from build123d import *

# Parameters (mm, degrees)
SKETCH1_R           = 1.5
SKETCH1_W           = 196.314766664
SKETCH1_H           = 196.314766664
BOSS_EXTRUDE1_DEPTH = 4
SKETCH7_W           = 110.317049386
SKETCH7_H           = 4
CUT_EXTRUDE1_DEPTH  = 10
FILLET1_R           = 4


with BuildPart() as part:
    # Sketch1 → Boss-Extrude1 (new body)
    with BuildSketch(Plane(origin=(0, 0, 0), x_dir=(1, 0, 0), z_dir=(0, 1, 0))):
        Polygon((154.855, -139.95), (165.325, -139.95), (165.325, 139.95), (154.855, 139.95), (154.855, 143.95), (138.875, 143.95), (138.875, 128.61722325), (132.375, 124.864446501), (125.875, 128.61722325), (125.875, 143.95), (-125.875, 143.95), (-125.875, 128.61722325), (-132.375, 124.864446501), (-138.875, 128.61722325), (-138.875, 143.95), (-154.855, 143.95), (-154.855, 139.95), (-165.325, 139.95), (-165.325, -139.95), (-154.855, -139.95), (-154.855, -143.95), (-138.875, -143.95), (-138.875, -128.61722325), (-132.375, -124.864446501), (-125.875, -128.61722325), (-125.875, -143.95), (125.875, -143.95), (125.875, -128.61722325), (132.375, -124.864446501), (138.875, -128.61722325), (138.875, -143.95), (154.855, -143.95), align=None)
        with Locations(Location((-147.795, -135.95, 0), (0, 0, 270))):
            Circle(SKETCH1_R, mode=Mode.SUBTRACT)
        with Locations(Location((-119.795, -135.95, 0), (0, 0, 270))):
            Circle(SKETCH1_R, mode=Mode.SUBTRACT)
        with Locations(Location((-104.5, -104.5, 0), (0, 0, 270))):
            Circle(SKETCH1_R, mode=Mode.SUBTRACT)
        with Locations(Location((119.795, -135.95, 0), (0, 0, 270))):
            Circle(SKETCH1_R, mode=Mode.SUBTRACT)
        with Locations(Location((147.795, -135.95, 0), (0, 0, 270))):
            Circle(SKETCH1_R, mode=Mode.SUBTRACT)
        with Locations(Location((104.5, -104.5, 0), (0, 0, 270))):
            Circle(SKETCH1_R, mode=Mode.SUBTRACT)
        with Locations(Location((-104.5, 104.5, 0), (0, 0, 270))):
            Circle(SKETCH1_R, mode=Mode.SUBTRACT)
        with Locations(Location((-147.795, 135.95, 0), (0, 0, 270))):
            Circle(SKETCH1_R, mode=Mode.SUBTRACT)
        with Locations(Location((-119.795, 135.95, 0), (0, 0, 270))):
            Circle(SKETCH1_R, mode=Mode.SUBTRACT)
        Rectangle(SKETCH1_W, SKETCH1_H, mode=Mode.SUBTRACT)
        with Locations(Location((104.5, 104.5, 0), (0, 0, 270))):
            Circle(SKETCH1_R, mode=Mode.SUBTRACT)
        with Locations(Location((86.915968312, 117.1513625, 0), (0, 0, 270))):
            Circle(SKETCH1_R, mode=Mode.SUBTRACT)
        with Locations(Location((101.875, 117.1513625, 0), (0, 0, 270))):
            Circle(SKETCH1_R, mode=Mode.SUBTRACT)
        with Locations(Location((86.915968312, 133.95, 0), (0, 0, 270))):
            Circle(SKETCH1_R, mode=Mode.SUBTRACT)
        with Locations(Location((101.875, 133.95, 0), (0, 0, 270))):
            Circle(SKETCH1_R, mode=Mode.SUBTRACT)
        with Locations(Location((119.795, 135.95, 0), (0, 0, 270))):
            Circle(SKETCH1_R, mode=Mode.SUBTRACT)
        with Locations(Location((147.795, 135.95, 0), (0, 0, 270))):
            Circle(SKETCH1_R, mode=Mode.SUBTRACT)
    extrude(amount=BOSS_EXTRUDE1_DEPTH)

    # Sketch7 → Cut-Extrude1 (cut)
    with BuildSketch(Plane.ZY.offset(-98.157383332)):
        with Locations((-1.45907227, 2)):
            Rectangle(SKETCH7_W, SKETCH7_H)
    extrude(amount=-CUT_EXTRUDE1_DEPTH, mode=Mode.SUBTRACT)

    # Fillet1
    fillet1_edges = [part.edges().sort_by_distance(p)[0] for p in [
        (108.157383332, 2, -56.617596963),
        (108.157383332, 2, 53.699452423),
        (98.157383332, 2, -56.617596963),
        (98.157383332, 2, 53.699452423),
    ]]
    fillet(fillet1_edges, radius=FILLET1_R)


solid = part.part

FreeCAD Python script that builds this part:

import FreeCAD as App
import Part
import Sketcher

V = App.Vector
Q = App.Units.Quantity


def edges_at(feature, points):
    """Names of the edges that pass closest to the given points."""
    edges = feature.Shape.Edges
    near = lambda p: min(range(len(edges)), key=lambda i: edges[i].distToShape(Part.Vertex(*p))[0])
    return sorted({f"Edge{near(p) + 1}" for p in points})


def add_polygon(sketch, points):
    """Adds a closed chain of lines whose ends are joined by coincident constraints."""
    first, n = sketch.GeometryCount, len(points)
    for a, b in zip(points, points[1:] + points[:1]):
        sketch.addGeometry(Part.LineSegment(App.Vector(*a, 0), App.Vector(*b, 0)), False)
    for i in range(n):
        sketch.addConstraint(Sketcher.Constraint("Coincident", first + i, 2, first + (i + 1) % n, 1))

doc = App.newDocument("Part")
body = doc.addObject("PartDesign::Body", "Body")

# Sketch on XZ plane
sketch1 = body.newObject("Sketcher::SketchObject", "Sketch")
sketch1.AttachmentSupport = (doc.getObject("XZ_Plane"), [""])
sketch1.MapMode = "FlatFace"
add_polygon(sketch1, [(154.855, 139.95), (165.325, 139.95), (165.325, -139.95), (154.855, -139.95), (154.855, -143.95), (138.875, -143.95), (138.875, -128.617223), (132.375, -124.864447), (125.875, -128.617223), (125.875, -143.95), (-125.875, -143.95), (-125.875, -128.617223), (-132.375, -124.864447), (-138.875, -128.617223), (-138.875, -143.95), (-154.855, -143.95), (-154.855, -139.95), (-165.325, -139.95), (-165.325, 139.95), (-154.855, 139.95), (-154.855, 143.95), (-138.875, 143.95), (-138.875, 128.617223), (-132.375, 124.864447), (-125.875, 128.617223), (-125.875, 143.95), (125.875, 143.95), (125.875, 128.617223), (132.375, 124.864447), (138.875, 128.617223), (138.875, 143.95), (154.855, 143.95)])  # lines 0-31
sketch1.addGeometry(Part.Circle(V(-147.795, 135.95, 0), V(0, 0, 1), 1.5), False)  # 32
sketch1.addGeometry(Part.Circle(V(-119.795, 135.95, 0), V(0, 0, 1), 1.5), False)  # 33
sketch1.addGeometry(Part.Circle(V(-104.5, 104.5, 0), V(0, 0, 1), 1.5), False)  # 34
sketch1.addGeometry(Part.Circle(V(104.5, 104.5, 0), V(0, 0, 1), 1.5), False)  # 35
sketch1.addGeometry(Part.Circle(V(119.795, 135.95, 0), V(0, 0, 1), 1.5), False)  # 36
sketch1.addGeometry(Part.Circle(V(147.795, 135.95, 0), V(0, 0, 1), 1.5), False)  # 37
sketch1.addGeometry(Part.Circle(V(-147.795, -135.95, 0), V(0, 0, 1), 1.5), False)  # 38
sketch1.addGeometry(Part.Circle(V(-119.795, -135.95, 0), V(0, 0, 1), 1.5), False)  # 39
sketch1.addGeometry(Part.Circle(V(-104.5, -104.5, 0), V(0, 0, 1), 1.5), False)  # 40
add_polygon(sketch1, [(98.157383, 98.157383), (-98.157383, 98.157383), (-98.157383, -98.157383), (98.157383, -98.157383)])  # lines 41-44
sketch1.addGeometry(Part.Circle(V(86.915968, -117.151363, 0), V(0, 0, 1), 1.5), False)  # 45
sketch1.addGeometry(Part.Circle(V(104.5, -104.5, 0), V(0, 0, 1), 1.5), False)  # 46
sketch1.addGeometry(Part.Circle(V(101.875, -117.151363, 0), V(0, 0, 1), 1.5), False)  # 47
sketch1.addGeometry(Part.Circle(V(86.915968, -133.95, 0), V(0, 0, 1), 1.5), False)  # 48
sketch1.addGeometry(Part.Circle(V(101.875, -133.95, 0), V(0, 0, 1), 1.5), False)  # 49
sketch1.addGeometry(Part.Circle(V(119.795, -135.95, 0), V(0, 0, 1), 1.5), False)  # 50
sketch1.addGeometry(Part.Circle(V(147.795, -135.95, 0), V(0, 0, 1), 1.5), False)  # 51
sketch1.addConstraint(Sketcher.Constraint("Horizontal", 0))
sketch1.addConstraint(Sketcher.Constraint("Vertical", 1))
sketch1.addConstraint(Sketcher.Constraint("Horizontal", 2))
sketch1.addConstraint(Sketcher.Constraint("Vertical", 3))
sketch1.addConstraint(Sketcher.Constraint("Horizontal", 4))
sketch1.addConstraint(Sketcher.Constraint("Vertical", 5))
sketch1.addConstraint(Sketcher.Constraint("Vertical", 8))
sketch1.addConstraint(Sketcher.Constraint("Horizontal", 9))
sketch1.addConstraint(Sketcher.Constraint("Vertical", 10))
sketch1.addConstraint(Sketcher.Constraint("Vertical", 13))
sketch1.addConstraint(Sketcher.Constraint("Horizontal", 14))
sketch1.addConstraint(Sketcher.Constraint("Vertical", 15))
sketch1.addConstraint(Sketcher.Constraint("Horizontal", 16))
sketch1.addConstraint(Sketcher.Constraint("Vertical", 17))
sketch1.addConstraint(Sketcher.Constraint("Horizontal", 18))
sketch1.addConstraint(Sketcher.Constraint("Vertical", 19))
sketch1.addConstraint(Sketcher.Constraint("Horizontal", 20))
sketch1.addConstraint(Sketcher.Constraint("Vertical", 21))
sketch1.addConstraint(Sketcher.Constraint("Vertical", 24))
sketch1.addConstraint(Sketcher.Constraint("Horizontal", 25))
sketch1.addConstraint(Sketcher.Constraint("Vertical", 26))
sketch1.addConstraint(Sketcher.Constraint("Vertical", 29))
sketch1.addConstraint(Sketcher.Constraint("Horizontal", 30))
sketch1.addConstraint(Sketcher.Constraint("Vertical", 31))
sketch1.addConstraint(Sketcher.Constraint("Horizontal", 41))
sketch1.addConstraint(Sketcher.Constraint("Vertical", 42))
sketch1.addConstraint(Sketcher.Constraint("Horizontal", 43))
sketch1.addConstraint(Sketcher.Constraint("Vertical", 44))
sketch1.addConstraint(Sketcher.Constraint("Equal", 32, 33))
sketch1.addConstraint(Sketcher.Constraint("Equal", 33, 34))
sketch1.addConstraint(Sketcher.Constraint("Equal", 34, 35))
sketch1.addConstraint(Sketcher.Constraint("Equal", 35, 36))
sketch1.addConstraint(Sketcher.Constraint("Equal", 36, 37))
sketch1.addConstraint(Sketcher.Constraint("Equal", 37, 38))
sketch1.addConstraint(Sketcher.Constraint("Equal", 38, 39))
sketch1.addConstraint(Sketcher.Constraint("Equal", 39, 40))
sketch1.addConstraint(Sketcher.Constraint("Equal", 40, 45))
sketch1.addConstraint(Sketcher.Constraint("Equal", 45, 46))
sketch1.addConstraint(Sketcher.Constraint("Equal", 46, 47))
sketch1.addConstraint(Sketcher.Constraint("Equal", 47, 48))
sketch1.addConstraint(Sketcher.Constraint("Equal", 48, 49))
sketch1.addConstraint(Sketcher.Constraint("Equal", 49, 50))
sketch1.addConstraint(Sketcher.Constraint("Equal", 50, 51))
sketch1.addConstraint(Sketcher.Constraint("Symmetric", 37, 3, 38, 3, -1, 1))
sketch1.addConstraint(Sketcher.Constraint("Symmetric", 36, 3, 39, 3, -1, 1))
sketch1.addConstraint(Sketcher.Constraint("Symmetric", 35, 3, 40, 3, -1, 1))
sketch1.addConstraint(Sketcher.Constraint("Symmetric", 34, 3, 46, 3, -1, 1))
sketch1.addConstraint(Sketcher.Constraint("Symmetric", 33, 3, 50, 3, -1, 1))
sketch1.addConstraint(Sketcher.Constraint("Symmetric", 32, 3, 51, 3, -1, 1))
sketch1.addConstraint(Sketcher.Constraint("Symmetric", 0, 2, 16, 2, -1, 1))
sketch1.addConstraint(Sketcher.Constraint("Symmetric", 2, 2, 18, 2, -1, 1))
sketch1.addConstraint(Sketcher.Constraint("Symmetric", 4, 2, 20, 2, -1, 1))
sketch1.addConstraint(Sketcher.Constraint("Symmetric", 6, 2, 22, 2, -1, 1))
sketch1.addConstraint(Sketcher.Constraint("Symmetric", 7, 2, 23, 2, -1, 1))
sketch1.addConstraint(Sketcher.Constraint("Symmetric", 9, 2, 25, 2, -1, 1))
sketch1.addConstraint(Sketcher.Constraint("Symmetric", 11, 2, 27, 2, -1, 1))
sketch1.addConstraint(Sketcher.Constraint("Symmetric", 12, 2, 28, 2, -1, 1))
sketch1.addConstraint(Sketcher.Constraint("Symmetric", 14, 2, 30, 2, -1, 1))
sketch1.addConstraint(Sketcher.Constraint("Symmetric", 41, 2, 43, 2, -1, 1))
sketch1.addConstraint(Sketcher.Constraint("Symmetric", 34, 3, 35, 3, -2))
sketch1.addConstraint(Sketcher.Constraint("Symmetric", 33, 3, 36, 3, -2))
sketch1.addConstraint(Sketcher.Constraint("Symmetric", 32, 3, 37, 3, -2))
sketch1.addConstraint(Sketcher.Constraint("Symmetric", 7, 2, 10, 2, -2))
sketch1.addConstraint(Sketcher.Constraint("Symmetric", 6, 2, 11, 2, -2))
sketch1.addConstraint(Sketcher.Constraint("Symmetric", 5, 2, 12, 2, -2))
sketch1.addConstraint(Sketcher.Constraint("Symmetric", 3, 2, 14, 2, -2))
sketch1.addConstraint(Sketcher.Constraint("Parallel", 6, 11))
sketch1.addConstraint(Sketcher.Constraint("Parallel", 11, 22))
sketch1.addConstraint(Sketcher.Constraint("Parallel", 22, 27))
sketch1.addConstraint(Sketcher.Constraint("Horizontal", 32, 3, 33, 3))
sketch1.addConstraint(Sketcher.Constraint("Horizontal", 45, 3, 47, 3))
sketch1.addConstraint(Sketcher.Constraint("Horizontal", 48, 3, 49, 3))
sketch1.addConstraint(Sketcher.Constraint("Horizontal", 5, 2, 7, 2))
sketch1.addConstraint(Sketcher.Constraint("Horizontal", 4, 2, 8, 2))
sketch1.addConstraint(Sketcher.Constraint("Horizontal", 2, 2, 15, 2))
sketch1.addConstraint(Sketcher.Constraint("Vertical", 45, 3, 48, 3))
sketch1.addConstraint(Sketcher.Constraint("Vertical", 47, 3, 49, 3))
sketch1.addConstraint(Sketcher.Constraint("Equal", 43, 42))
sketch1.addConstraint(Sketcher.Constraint("Diameter", 32, Q("3 mm")))
sketch1.addConstraint(Sketcher.Constraint("DistanceY", 3, 2, 3, 1, Q("4 mm")))
sketch1.addConstraint(Sketcher.Constraint("Angle", 6, Q("150 deg")))
sketch1.addConstraint(Sketcher.Constraint("DistanceY", 1, 2, 1, 1, Q("279.9 mm")))
sketch1.addConstraint(Sketcher.Constraint("DistanceX", 32, 3, 33, 3, Q("28 mm")))
sketch1.addConstraint(Sketcher.Constraint("DistanceX", 34, 3, 35, 3, Q("209 mm")))
sketch1.addConstraint(Sketcher.Constraint("DistanceY", 40, 3, 34, 3, Q("209 mm")))
sketch1.addConstraint(Sketcher.Constraint("DistanceY", 39, 3, 48, 3, Q("2 mm")))
sketch1.addConstraint(Sketcher.Constraint("DistanceY", 37, 3, 0, 2, Q("4 mm")))
sketch1.addConstraint(Sketcher.Constraint("DistanceX", 7, 2, 5, 2, Q("13 mm")))
sketch1.addConstraint(Sketcher.Constraint("DistanceX", 0, 1, 0, 2, Q("10.47 mm")))
sketch1.addConstraint(Sketcher.Constraint("DistanceX", 4, 2, 4, 1, Q("15.98 mm")))
sketch1.addConstraint(Sketcher.Constraint("DistanceX", 9, 2, 9, 1, Q("251.75 mm")))
sketch1.addConstraint(Sketcher.Constraint("DistanceX", 33, 3, 36, 3, Q("239.59 mm")))
sketch1.addConstraint(Sketcher.Constraint("DistanceX", 39, 3, 47, 3, Q("221.67 mm")))
sketch1.addConstraint(Sketcher.Constraint("DistanceX", 41, 2, 41, 1, Q("196.314767 mm")))
sketch1.addConstraint(Sketcher.Constraint("DistanceY", 5, 1, 5, 2, Q("15.332777 mm")))
sketch1.addConstraint(Sketcher.Constraint("DistanceX", -1, 1, 45, 3, Q("86.915968 mm")))
sketch1.addConstraint(Sketcher.Constraint("DistanceY", 47, 3, 43, 2, Q("18.993979 mm")))
pad1 = body.newObject("PartDesign::Pad", "Pad")
pad1.Profile = sketch1
pad1.Length = 4
pad1.Reversed = True

# Sketch on YZ plane
sketch2 = body.newObject("Sketcher::SketchObject", "Sketch001")
sketch2.AttachmentSupport = (doc.getObject("YZ_Plane"), [""])
sketch2.MapMode = "FlatFace"
sketch2.AttachmentOffset = App.Placement(V(0, 0, 98.157383), App.Rotation())
add_polygon(sketch2, [(4, -56.617597), (0, -56.617597), (0, 53.699452), (4, 53.699452)])  # lines 0-3
sketch2.addConstraint(Sketcher.Constraint("Horizontal", 0))
sketch2.addConstraint(Sketcher.Constraint("Vertical", 1))
sketch2.addConstraint(Sketcher.Constraint("Horizontal", 2))
sketch2.addConstraint(Sketcher.Constraint("Vertical", 3))
sketch2.addConstraint(Sketcher.Constraint("PointOnObject", 0, 2, -2))
sketch2.addConstraint(Sketcher.Constraint("DistanceX", 0, 2, 0, 1, Q("4 mm")))
sketch2.addConstraint(Sketcher.Constraint("DistanceY", 1, 1, 1, 2, Q("110.317049 mm")))
sketch2.addConstraint(Sketcher.Constraint("DistanceY", 0, 2, -1, 1, Q("56.617597 mm")))
pocket1 = body.newObject("PartDesign::Pocket", "Pocket")
pocket1.Profile = sketch2
pocket1.Length = 10
pocket1.Reversed = True
doc.recompute()

fillet = body.newObject("PartDesign::Fillet", "Fillet")
fillet.Base = (pocket1, edges_at(pocket1, [
    (108.157, 2, -56.618),
    (108.157, 2, 53.699),
    (98.157, 2, -56.618),
    (98.157, 2, 53.699),
]))
fillet.Radius = 4

doc.recompute()
